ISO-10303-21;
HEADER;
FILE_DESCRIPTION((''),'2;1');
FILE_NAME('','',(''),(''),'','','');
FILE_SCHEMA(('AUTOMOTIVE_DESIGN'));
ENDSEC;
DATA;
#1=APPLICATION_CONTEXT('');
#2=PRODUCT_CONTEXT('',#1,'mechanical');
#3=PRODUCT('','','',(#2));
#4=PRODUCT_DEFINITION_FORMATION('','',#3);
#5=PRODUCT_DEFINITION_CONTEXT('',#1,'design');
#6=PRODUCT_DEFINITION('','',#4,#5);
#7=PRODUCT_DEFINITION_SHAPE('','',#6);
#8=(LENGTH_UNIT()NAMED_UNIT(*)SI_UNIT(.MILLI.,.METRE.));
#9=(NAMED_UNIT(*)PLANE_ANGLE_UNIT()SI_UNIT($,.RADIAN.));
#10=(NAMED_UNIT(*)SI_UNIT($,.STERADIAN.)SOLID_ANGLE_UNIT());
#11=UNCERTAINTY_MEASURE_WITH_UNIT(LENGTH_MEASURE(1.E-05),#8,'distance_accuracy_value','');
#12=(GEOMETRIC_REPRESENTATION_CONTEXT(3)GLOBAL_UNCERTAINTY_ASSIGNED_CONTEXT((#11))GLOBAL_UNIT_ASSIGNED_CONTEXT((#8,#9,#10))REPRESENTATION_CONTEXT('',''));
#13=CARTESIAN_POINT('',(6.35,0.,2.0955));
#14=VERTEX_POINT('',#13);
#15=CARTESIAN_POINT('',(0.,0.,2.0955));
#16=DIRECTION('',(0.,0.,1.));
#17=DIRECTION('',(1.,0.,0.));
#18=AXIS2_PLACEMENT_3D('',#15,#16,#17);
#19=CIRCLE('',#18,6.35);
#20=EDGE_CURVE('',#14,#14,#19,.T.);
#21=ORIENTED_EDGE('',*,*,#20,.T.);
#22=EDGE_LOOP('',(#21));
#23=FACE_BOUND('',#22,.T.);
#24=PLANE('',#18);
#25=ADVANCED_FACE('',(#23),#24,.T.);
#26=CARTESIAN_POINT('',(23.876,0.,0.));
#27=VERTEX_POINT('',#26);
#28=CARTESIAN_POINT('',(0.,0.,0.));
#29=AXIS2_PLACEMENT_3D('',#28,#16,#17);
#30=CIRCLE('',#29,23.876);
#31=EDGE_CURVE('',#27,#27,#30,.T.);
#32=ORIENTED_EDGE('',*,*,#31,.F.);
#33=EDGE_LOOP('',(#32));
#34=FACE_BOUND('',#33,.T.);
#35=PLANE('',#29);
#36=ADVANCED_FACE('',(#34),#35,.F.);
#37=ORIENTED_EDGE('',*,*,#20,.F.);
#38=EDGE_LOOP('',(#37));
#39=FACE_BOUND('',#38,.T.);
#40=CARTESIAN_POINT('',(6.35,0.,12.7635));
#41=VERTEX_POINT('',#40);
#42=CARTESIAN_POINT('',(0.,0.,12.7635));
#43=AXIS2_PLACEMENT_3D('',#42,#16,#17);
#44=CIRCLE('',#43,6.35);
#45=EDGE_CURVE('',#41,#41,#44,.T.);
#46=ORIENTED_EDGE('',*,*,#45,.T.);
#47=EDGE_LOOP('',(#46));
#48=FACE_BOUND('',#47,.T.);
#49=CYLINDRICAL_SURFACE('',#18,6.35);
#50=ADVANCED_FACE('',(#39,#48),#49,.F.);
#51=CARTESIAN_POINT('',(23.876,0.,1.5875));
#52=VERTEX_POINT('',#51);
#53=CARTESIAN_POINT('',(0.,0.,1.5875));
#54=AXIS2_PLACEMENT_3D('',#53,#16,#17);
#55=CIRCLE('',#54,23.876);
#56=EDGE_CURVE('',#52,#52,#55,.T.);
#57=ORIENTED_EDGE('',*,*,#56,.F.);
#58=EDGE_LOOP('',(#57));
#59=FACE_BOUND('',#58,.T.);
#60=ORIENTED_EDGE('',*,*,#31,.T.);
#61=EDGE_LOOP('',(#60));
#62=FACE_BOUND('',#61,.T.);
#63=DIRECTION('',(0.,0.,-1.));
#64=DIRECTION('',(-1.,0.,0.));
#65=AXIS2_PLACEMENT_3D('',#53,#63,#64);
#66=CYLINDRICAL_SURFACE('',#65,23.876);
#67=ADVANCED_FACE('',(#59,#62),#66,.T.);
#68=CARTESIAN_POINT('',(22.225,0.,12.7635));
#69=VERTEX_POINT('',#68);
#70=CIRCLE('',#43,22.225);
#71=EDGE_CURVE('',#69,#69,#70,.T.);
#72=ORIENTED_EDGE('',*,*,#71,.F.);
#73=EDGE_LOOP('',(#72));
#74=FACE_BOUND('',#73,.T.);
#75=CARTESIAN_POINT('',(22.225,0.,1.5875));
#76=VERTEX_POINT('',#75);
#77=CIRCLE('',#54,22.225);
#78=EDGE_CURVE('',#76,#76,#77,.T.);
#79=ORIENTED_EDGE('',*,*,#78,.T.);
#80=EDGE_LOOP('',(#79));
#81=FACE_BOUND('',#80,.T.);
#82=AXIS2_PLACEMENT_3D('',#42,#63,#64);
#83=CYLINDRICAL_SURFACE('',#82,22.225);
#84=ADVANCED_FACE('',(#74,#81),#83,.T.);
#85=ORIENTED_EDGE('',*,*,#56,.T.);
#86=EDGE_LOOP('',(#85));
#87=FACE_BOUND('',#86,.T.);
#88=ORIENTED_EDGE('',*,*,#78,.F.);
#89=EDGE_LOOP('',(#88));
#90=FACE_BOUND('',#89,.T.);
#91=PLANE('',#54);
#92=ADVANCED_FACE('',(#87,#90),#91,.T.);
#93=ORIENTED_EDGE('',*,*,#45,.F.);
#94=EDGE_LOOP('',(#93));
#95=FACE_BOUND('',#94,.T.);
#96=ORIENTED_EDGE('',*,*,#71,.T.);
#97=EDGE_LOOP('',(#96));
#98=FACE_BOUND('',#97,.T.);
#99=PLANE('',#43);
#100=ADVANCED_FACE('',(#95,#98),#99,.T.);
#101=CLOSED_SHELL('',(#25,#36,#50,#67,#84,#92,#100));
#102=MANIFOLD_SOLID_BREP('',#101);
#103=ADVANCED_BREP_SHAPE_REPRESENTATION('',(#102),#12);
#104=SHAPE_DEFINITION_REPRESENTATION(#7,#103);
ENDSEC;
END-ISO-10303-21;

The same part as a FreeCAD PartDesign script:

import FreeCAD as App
import Part
import Sketcher
from FreeCAD import Vector
Q = App.Units.Quantity

doc = App.newDocument("Part")
params = doc.addObject("Spreadsheet::Sheet", "Params")
for row, (alias, value) in enumerate([
    ("sketch1_diameter", "1.88 in"),
    ("pad1_length", "0.0625 in"),
    ("sketch2_diameter", "1.75 in"),
    ("pad2_length", "0.44 in"),
    ("sketch3_diameter", "0.5 in"),
    ("pocket1_length", "0.42 in"),
], start=1):
    params.set(f"A{row}", alias)
    params.set(f"B{row}", "=" + value)
    params.setAlias(f"B{row}", alias)

body = doc.addObject("PartDesign::Body", "Body")

sketch1 = doc.addObject("Sketcher::SketchObject", "Sketch")
body.addObject(sketch1)
sketch1.AttachmentSupport = (doc.XY_Plane, [""])
sketch1.MapMode = "FlatFace"
sketch1.addGeometry(Part.Circle(Vector(0, 0, 0), Vector(0, 0, 1), 24), False)
sketch1.addConstraint(Sketcher.Constraint("Coincident", 0, 3, -1, 1))
sketch1.addConstraint(Sketcher.Constraint("Diameter", 0, Q("1.88 in")))
sketch1.setExpression("Constraints[1]", "Params.sketch1_diameter")
pad1 = doc.addObject("PartDesign::Pad", "Pad")
body.addObject(pad1)
pad1.Profile = sketch1
pad1.setExpression("Length", "Params.pad1_length")

sketch2 = doc.addObject("Sketcher::SketchObject", "Sketch001")
body.addObject(sketch2)
sketch2.AttachmentSupport = (doc.XY_Plane, [""])
sketch2.MapMode = "FlatFace"
sketch2.AttachmentOffset = App.Placement(Vector(0, 0, 0.0625 * 25.4), App.Rotation())
sketch2.addGeometry(Part.Circle(Vector(0, 0, 0), Vector(0, 0, 1), 22), False)
sketch2.addConstraint(Sketcher.Constraint("Coincident", 0, 3, -1, 1))
sketch2.addConstraint(Sketcher.Constraint("Diameter", 0, Q("1.75 in")))
sketch2.setExpression("Constraints[1]", "Params.sketch2_diameter")
pad2 = doc.addObject("PartDesign::Pad", "Pad001")
body.addObject(pad2)
pad2.Profile = sketch2
pad2.setExpression("Length", "Params.pad2_length")

sketch3 = doc.addObject("Sketcher::SketchObject", "Sketch002")
body.addObject(sketch3)
sketch3.AttachmentSupport = (doc.XY_Plane, [""])
sketch3.MapMode = "FlatFace"
sketch3.AttachmentOffset = App.Placement(Vector(0, 0, 0.5025 * 25.4), App.Rotation())
sketch3.addGeometry(Part.Circle(Vector(0, 0, 0), Vector(0, 0, 1), 6), False)
sketch3.addConstraint(Sketcher.Constraint("Coincident", 0, 3, -1, 1))
sketch3.addConstraint(Sketcher.Constraint("Diameter", 0, Q("0.5 in")))
sketch3.setExpression("Constraints[1]", "Params.sketch3_diameter")
pocket1 = doc.addObject("PartDesign::Pocket", "Pocket")
body.addObject(pocket1)
pocket1.Profile = sketch3
pocket1.setExpression("Length", "Params.pocket1_length")

doc.recompute()
